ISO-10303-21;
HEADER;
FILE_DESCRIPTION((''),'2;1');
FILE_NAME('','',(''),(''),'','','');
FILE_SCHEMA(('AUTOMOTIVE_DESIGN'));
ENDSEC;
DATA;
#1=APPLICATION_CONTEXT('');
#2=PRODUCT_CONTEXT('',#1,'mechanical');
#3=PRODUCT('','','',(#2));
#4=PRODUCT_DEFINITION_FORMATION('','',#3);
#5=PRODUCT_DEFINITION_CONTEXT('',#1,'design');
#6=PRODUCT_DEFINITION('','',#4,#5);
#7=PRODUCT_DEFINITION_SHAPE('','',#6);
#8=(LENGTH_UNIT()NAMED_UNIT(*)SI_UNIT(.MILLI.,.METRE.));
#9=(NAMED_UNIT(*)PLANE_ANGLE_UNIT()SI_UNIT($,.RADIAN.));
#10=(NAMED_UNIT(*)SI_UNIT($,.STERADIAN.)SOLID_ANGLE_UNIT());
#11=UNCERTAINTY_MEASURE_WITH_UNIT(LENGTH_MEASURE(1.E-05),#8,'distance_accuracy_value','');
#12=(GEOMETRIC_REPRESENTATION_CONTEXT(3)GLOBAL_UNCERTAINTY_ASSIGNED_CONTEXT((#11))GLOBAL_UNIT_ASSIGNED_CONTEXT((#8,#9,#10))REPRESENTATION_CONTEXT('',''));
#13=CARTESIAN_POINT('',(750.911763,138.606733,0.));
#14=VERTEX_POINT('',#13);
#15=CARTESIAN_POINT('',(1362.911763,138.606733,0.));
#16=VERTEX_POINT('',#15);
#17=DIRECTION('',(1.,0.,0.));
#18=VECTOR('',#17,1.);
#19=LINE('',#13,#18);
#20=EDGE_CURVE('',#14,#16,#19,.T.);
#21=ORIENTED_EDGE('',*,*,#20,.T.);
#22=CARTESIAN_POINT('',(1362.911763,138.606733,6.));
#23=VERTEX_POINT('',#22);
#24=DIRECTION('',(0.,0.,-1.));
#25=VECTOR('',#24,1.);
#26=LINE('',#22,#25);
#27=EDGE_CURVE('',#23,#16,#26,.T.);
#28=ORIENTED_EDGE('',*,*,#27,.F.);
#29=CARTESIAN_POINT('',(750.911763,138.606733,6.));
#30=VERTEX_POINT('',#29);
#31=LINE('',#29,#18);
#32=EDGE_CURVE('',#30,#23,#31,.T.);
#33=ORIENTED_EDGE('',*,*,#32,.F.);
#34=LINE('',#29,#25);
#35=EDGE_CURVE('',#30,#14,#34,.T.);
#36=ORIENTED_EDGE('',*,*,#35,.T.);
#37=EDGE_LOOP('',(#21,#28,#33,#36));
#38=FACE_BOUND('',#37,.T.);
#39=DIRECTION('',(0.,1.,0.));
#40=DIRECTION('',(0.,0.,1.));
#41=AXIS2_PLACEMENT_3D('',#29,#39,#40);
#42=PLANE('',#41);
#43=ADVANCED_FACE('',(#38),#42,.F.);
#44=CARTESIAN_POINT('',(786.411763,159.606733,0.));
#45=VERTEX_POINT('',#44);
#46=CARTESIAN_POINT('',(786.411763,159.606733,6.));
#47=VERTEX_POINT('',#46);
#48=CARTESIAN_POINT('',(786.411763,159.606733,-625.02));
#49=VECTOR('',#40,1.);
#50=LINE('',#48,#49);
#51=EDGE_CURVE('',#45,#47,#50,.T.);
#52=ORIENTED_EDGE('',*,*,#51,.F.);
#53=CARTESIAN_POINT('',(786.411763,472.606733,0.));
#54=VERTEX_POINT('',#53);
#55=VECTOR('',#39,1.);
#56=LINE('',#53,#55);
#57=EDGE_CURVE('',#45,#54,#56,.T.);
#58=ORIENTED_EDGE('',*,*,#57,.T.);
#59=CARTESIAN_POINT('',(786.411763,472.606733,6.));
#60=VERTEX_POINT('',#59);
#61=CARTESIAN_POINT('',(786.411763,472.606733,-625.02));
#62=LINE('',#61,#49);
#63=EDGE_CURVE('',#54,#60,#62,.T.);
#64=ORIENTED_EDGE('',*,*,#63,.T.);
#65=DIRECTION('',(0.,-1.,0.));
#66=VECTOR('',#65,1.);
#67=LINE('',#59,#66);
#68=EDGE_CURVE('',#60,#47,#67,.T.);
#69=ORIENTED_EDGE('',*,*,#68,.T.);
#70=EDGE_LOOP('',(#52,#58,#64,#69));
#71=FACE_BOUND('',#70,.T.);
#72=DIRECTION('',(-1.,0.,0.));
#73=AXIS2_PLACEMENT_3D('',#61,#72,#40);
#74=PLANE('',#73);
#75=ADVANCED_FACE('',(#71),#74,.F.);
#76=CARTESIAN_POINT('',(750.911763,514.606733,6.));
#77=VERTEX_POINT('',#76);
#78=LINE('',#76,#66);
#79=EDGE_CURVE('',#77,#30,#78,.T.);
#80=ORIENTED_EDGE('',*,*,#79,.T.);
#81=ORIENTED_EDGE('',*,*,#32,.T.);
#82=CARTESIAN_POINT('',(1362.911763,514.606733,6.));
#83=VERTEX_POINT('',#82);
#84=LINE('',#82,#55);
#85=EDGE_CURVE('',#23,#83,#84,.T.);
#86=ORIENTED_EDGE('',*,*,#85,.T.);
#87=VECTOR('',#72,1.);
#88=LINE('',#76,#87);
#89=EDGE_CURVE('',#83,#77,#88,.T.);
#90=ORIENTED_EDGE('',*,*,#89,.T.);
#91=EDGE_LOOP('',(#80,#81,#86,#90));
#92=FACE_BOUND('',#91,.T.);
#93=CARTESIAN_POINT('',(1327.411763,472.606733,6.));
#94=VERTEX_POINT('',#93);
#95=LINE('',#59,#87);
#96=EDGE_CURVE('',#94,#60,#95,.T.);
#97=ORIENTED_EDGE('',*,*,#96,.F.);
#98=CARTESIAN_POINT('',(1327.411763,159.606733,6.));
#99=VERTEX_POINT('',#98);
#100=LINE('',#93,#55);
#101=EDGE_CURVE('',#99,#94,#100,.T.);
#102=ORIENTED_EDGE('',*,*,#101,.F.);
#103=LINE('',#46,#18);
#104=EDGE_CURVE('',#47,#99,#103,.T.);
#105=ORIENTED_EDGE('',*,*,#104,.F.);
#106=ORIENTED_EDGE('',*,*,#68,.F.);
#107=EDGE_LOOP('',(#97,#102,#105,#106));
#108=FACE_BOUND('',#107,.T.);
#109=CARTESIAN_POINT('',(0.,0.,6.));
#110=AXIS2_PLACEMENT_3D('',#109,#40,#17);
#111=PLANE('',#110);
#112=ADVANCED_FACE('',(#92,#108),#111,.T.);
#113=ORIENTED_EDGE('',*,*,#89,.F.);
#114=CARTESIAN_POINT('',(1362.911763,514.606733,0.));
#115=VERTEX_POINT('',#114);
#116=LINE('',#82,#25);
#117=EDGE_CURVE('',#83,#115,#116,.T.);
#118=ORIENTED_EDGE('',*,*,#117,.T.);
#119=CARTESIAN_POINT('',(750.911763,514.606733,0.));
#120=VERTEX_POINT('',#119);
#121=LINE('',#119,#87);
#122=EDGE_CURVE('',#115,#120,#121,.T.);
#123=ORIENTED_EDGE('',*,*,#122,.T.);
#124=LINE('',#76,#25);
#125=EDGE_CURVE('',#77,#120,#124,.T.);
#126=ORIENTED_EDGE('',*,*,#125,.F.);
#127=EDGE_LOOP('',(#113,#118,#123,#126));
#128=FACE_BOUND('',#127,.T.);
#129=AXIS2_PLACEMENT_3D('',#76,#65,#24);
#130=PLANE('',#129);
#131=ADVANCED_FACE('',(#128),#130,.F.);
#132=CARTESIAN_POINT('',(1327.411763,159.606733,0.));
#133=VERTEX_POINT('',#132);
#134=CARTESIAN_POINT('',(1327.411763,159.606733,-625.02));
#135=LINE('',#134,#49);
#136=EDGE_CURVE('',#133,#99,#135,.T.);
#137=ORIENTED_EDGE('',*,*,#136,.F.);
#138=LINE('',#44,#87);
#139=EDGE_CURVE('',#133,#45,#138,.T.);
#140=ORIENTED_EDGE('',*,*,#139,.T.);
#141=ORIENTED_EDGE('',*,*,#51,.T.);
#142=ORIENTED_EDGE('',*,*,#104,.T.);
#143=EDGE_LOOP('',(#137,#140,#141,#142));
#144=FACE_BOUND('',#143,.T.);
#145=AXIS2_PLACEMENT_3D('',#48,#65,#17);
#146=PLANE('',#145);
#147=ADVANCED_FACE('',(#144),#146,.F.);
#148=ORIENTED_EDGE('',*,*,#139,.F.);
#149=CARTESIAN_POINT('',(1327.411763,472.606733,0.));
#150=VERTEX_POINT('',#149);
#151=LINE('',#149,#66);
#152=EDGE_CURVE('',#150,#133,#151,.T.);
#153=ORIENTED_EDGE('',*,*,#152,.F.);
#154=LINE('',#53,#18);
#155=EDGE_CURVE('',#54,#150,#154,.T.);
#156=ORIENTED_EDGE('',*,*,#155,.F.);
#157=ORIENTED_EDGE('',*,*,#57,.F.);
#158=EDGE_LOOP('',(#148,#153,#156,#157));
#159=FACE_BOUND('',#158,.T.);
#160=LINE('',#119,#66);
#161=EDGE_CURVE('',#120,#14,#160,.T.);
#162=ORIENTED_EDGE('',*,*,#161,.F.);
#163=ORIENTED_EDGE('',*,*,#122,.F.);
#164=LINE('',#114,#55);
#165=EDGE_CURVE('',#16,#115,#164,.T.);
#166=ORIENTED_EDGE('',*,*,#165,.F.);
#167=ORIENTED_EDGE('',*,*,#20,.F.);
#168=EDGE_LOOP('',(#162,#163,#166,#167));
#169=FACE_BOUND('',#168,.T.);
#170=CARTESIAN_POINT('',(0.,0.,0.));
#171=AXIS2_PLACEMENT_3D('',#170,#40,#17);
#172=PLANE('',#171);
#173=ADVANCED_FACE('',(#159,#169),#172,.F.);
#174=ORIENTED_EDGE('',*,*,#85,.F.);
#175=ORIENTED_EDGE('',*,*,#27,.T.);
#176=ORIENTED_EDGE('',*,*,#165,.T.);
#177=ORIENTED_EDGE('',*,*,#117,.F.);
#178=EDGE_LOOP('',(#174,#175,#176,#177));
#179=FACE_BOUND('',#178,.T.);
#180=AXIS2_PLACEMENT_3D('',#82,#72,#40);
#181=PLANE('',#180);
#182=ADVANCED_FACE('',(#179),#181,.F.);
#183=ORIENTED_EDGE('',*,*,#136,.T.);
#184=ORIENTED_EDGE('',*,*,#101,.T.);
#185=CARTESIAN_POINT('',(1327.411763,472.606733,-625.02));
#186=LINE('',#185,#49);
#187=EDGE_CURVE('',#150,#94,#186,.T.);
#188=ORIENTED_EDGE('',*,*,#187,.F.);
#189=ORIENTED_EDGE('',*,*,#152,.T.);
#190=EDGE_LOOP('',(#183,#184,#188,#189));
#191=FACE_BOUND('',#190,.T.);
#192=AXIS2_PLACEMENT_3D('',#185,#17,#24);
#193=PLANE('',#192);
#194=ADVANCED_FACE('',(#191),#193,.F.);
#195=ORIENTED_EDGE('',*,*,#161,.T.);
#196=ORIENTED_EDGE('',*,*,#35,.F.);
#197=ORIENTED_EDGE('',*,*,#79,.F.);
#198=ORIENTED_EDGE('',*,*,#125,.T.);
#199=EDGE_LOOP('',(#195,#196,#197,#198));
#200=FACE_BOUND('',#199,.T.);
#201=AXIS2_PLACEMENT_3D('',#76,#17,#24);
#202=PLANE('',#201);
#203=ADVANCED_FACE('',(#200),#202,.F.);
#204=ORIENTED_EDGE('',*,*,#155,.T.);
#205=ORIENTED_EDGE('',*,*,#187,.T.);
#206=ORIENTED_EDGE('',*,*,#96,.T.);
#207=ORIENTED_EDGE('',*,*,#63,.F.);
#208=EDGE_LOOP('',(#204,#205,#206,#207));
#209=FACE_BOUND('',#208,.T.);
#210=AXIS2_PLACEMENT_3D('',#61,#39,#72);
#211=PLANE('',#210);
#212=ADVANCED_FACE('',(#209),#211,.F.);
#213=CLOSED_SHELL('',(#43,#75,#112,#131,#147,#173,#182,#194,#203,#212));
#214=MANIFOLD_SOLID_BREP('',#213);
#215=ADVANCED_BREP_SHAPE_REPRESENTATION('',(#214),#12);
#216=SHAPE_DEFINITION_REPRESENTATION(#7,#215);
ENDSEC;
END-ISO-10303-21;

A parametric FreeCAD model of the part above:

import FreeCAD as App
import Part
import Sketcher
from FreeCAD import Vector


def add_polygon(sketch, points):
    """Adds a closed chain of lines whose ends are joined by coincident constraints."""
    first, n = sketch.GeometryCount, len(points)
    for a, b in zip(points, points[1:] + points[:1]):
        sketch.addGeometry(Part.LineSegment(App.Vector(*a, 0), App.Vector(*b, 0)), False)
    for i in range(n):
        sketch.addConstraint(Sketcher.Constraint("Coincident", first + i, 2, first + (i + 1) % n, 1))

doc = App.newDocument("Part")
body = doc.addObject("PartDesign::Body", "Body")

sketch1 = doc.addObject("Sketcher::SketchObject", "Sketch")
body.addObject(sketch1)
sketch1.AttachmentSupport = (doc.XY_Plane, [""])
sketch1.MapMode = "FlatFace"
add_polygon(sketch1, [(751, 515), (751, 139), (1363, 139), (1363, 515)])
sketch1.addConstraint([
    Sketcher.Constraint("Vertical", 0),
    Sketcher.Constraint("Horizontal", 1),
    Sketcher.Constraint("Vertical", 2),
    Sketcher.Constraint("Horizontal", 3),
    Sketcher.Constraint("DistanceX", 1, 1, 1, 2, 612.0),
    Sketcher.Constraint("DistanceY", 0, 2, 0, 1, 376.0),
    Sketcher.Constraint("DistanceX", -1, 1, 0, 2, 750.911763),
    Sketcher.Constraint("DistanceY", -1, 1, 0, 2, 138.606733),
])
pad1 = doc.addObject("PartDesign::Pad", "Pad")
body.addObject(pad1)
pad1.Profile = sketch1
pad1.Length = 6

sketch2 = doc.addObject("Sketcher::SketchObject", "Sketch001")
body.addObject(sketch2)
sketch2.AttachmentSupport = (doc.XY_Plane, [""])
sketch2.MapMode = "FlatFace"
sketch2.AttachmentOffset = App.Placement(Vector(0, 0, 6), App.Rotation())
add_polygon(sketch2, [(786, 473), (786, 160), (1327, 160), (1327, 473)])
sketch2.addConstraint([
    Sketcher.Constraint("Vertical", 0),
    Sketcher.Constraint("Horizontal", 1),
    Sketcher.Constraint("Vertical", 2),
    Sketcher.Constraint("Horizontal", 3),
    Sketcher.Constraint("DistanceX", 1, 1, 1, 2, 541.0),
    Sketcher.Constraint("DistanceY", 0, 2, 0, 1, 313.0),
    Sketcher.Constraint("DistanceX", -1, 1, 0, 2, 786.411763),
    Sketcher.Constraint("DistanceY", -1, 1, 0, 2, 159.606733),
])
pocket1 = doc.addObject("PartDesign::Pocket", "Pocket")
body.addObject(pocket1)
pocket1.Profile = sketch2
pocket1.Length = 6

doc.recompute()
